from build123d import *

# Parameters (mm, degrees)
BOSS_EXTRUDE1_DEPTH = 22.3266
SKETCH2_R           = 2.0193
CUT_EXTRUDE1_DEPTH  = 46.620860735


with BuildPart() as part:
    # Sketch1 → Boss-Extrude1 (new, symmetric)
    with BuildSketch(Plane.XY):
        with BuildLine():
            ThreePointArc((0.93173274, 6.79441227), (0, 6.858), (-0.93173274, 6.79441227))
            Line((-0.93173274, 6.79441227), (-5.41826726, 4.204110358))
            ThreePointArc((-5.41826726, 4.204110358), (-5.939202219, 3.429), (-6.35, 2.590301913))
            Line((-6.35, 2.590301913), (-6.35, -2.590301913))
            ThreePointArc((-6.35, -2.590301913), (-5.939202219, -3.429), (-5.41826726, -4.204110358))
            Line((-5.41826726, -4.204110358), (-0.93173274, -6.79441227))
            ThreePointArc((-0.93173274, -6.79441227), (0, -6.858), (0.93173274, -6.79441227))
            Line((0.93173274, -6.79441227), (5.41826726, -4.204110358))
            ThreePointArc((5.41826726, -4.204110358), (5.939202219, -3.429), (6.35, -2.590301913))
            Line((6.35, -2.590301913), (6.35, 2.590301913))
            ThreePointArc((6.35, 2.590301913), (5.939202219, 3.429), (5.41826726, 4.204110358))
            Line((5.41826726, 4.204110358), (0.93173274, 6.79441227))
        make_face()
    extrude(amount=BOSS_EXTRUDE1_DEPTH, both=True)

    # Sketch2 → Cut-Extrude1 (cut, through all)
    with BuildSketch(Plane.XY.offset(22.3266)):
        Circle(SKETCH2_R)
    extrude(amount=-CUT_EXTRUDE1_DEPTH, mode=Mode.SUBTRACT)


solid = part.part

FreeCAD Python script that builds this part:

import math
import FreeCAD as App
import Part
import Sketcher

V = App.Vector
Q = App.Units.Quantity

doc = App.newDocument("Part")
params = doc.addObject("Spreadsheet::Sheet", "Params")
for row, (alias, value) in enumerate([
    ("sketch1_radius", "0.27 in"),
    ("pad1_length", "1.758 in"),
    ("sketch2_diameter", "0.159 in"),
], start=1):
    params.set(f"A{row}", alias)
    params.set(f"B{row}", "=" + value)
    params.setAlias(f"B{row}", alias)

body = doc.addObject("PartDesign::Body", "Body")

# Sketch on XY plane
sketch1 = body.newObject("Sketcher::SketchObject", "Sketch")
sketch1.AttachmentSupport = (doc.getObject("XY_Plane"), [""])
sketch1.MapMode = "FlatFace"
sketch1.addGeometry(Part.ArcOfCircle(Part.Circle(V(0, 0, 0), V(0, 0, 1), 6.9), math.radians(82.19), math.radians(97.81)), False)
sketch1.addGeometry(Part.LineSegment(V(-0.9, 6.8, 0), V(-5.4, 4.2, 0)), False)
sketch1.addGeometry(Part.ArcOfCircle(Part.Circle(V(0, 0, 0), V(0, 0, 1), 6.9), math.radians(142.19), math.radians(157.81)), False)
sketch1.addGeometry(Part.LineSegment(V(-6.3, 2.6, 0), V(-6.3, -2.6, 0)), False)
sketch1.addGeometry(Part.ArcOfCircle(Part.Circle(V(0, 0, 0), V(0, 0, 1), 6.9), math.radians(-157.81), math.radians(-142.19)), False)
sketch1.addGeometry(Part.LineSegment(V(-5.4, -4.2, 0), V(-0.9, -6.8, 0)), False)
sketch1.addGeometry(Part.ArcOfCircle(Part.Circle(V(0, 0, 0), V(0, 0, 1), 6.9), math.radians(-97.81), math.radians(-82.19)), False)
sketch1.addGeometry(Part.LineSegment(V(0.9, -6.8, 0), V(5.4, -4.2, 0)), False)
sketch1.addGeometry(Part.ArcOfCircle(Part.Circle(V(0, 0, 0), V(0, 0, 1), 6.9), math.radians(-37.81), math.radians(-22.19)), False)
sketch1.addGeometry(Part.LineSegment(V(6.3, -2.6, 0), V(6.3, 2.6, 0)), False)
sketch1.addGeometry(Part.ArcOfCircle(Part.Circle(V(0, 0, 0), V(0, 0, 1), 6.9), math.radians(22.19), math.radians(37.81)), False)
sketch1.addGeometry(Part.LineSegment(V(5.4, 4.2, 0), V(0.9, 6.8, 0)), False)
sketch1.addConstraint(Sketcher.Constraint("Coincident", 0, 2, 1, 1))
sketch1.addConstraint(Sketcher.Constraint("Coincident", 1, 2, 2, 1))
sketch1.addConstraint(Sketcher.Constraint("Coincident", 2, 2, 3, 1))
sketch1.addConstraint(Sketcher.Constraint("Coincident", 3, 2, 4, 1))
sketch1.addConstraint(Sketcher.Constraint("Coincident", 4, 2, 5, 1))
sketch1.addConstraint(Sketcher.Constraint("Coincident", 5, 2, 6, 1))
sketch1.addConstraint(Sketcher.Constraint("Coincident", 6, 2, 7, 1))
sketch1.addConstraint(Sketcher.Constraint("Coincident", 7, 2, 8, 1))
sketch1.addConstraint(Sketcher.Constraint("Coincident", 8, 2, 9, 1))
sketch1.addConstraint(Sketcher.Constraint("Coincident", 9, 2, 10, 1))
sketch1.addConstraint(Sketcher.Constraint("Coincident", 10, 2, 11, 1))
sketch1.addConstraint(Sketcher.Constraint("Coincident", 11, 2, 0, 1))
sketch1.addConstraint(Sketcher.Constraint("Vertical", 3))
sketch1.addConstraint(Sketcher.Constraint("Vertical", 9))
sketch1.addConstraint(Sketcher.Constraint("Coincident", 0, 3, -1, 1))
sketch1.addConstraint(Sketcher.Constraint("Coincident", 2, 3, -1, 1))
sketch1.addConstraint(Sketcher.Constraint("Coincident", 4, 3, -1, 1))
sketch1.addConstraint(Sketcher.Constraint("Coincident", 6, 3, -1, 1))
sketch1.addConstraint(Sketcher.Constraint("Coincident", 8, 3, -1, 1))
sketch1.addConstraint(Sketcher.Constraint("Coincident", 10, 3, -1, 1))
sketch1.addConstraint(Sketcher.Constraint("Equal", 0, 2))
sketch1.addConstraint(Sketcher.Constraint("Equal", 2, 4))
sketch1.addConstraint(Sketcher.Constraint("Equal", 4, 6))
sketch1.addConstraint(Sketcher.Constraint("Equal", 6, 8))
sketch1.addConstraint(Sketcher.Constraint("Equal", 8, 10))
sketch1.addConstraint(Sketcher.Constraint("Parallel", 1, 7))
sketch1.addConstraint(Sketcher.Constraint("Parallel", 5, 11))
sketch1.addConstraint(Sketcher.Constraint("Horizontal", 5, 2, 6, 2))
sketch1.addConstraint(Sketcher.Constraint("Horizontal", 4, 2, 7, 2))
sketch1.addConstraint(Sketcher.Constraint("Horizontal", 3, 2, 8, 2))
sketch1.addConstraint(Sketcher.Constraint("Horizontal", 1, 2, 10, 2))
sketch1.addConstraint(Sketcher.Constraint("Vertical", 1, 2, 4, 2))
sketch1.addConstraint(Sketcher.Constraint("Radius", 0, Q("0.27 in")))
sketch1.addConstraint(Sketcher.Constraint("Angle", 1, Q("-150 deg")))
sketch1.addConstraint(Sketcher.Constraint("DistanceX", 2, 2, -1, 1, Q("0.25 in")))
sketch1.addConstraint(Sketcher.Constraint("DistanceX", 4, 2, 6, 2, Q("0.25 in")))
sketch1.setExpression("Constraints[32]", "Params.sketch1_radius")
pad1 = body.newObject("PartDesign::Pad", "Pad")
pad1.Profile = sketch1
pad1.setExpression("Length", "Params.pad1_length")
pad1.Midplane = True

# Sketch on XY plane
sketch2 = body.newObject("Sketcher::SketchObject", "Sketch001")
sketch2.AttachmentSupport = (doc.getObject("XY_Plane"), [""])
sketch2.MapMode = "FlatFace"
sketch2.AttachmentOffset = App.Placement(V(0, 0, 0.879 * 25.4), App.Rotation())
sketch2.addGeometry(Part.Circle(V(0, 0, 0), V(0, 0, 1), 2), False)
sketch2.addConstraint(Sketcher.Constraint("Coincident", 0, 3, -1, 1))
sketch2.addConstraint(Sketcher.Constraint("Diameter", 0, Q("0.159 in")))
sketch2.setExpression("Constraints[1]", "Params.sketch2_diameter")
pocket1 = body.newObject("PartDesign::Pocket", "Pocket")
pocket1.Profile = sketch2
pocket1.Type = "ThroughAll"

doc.recompute()
